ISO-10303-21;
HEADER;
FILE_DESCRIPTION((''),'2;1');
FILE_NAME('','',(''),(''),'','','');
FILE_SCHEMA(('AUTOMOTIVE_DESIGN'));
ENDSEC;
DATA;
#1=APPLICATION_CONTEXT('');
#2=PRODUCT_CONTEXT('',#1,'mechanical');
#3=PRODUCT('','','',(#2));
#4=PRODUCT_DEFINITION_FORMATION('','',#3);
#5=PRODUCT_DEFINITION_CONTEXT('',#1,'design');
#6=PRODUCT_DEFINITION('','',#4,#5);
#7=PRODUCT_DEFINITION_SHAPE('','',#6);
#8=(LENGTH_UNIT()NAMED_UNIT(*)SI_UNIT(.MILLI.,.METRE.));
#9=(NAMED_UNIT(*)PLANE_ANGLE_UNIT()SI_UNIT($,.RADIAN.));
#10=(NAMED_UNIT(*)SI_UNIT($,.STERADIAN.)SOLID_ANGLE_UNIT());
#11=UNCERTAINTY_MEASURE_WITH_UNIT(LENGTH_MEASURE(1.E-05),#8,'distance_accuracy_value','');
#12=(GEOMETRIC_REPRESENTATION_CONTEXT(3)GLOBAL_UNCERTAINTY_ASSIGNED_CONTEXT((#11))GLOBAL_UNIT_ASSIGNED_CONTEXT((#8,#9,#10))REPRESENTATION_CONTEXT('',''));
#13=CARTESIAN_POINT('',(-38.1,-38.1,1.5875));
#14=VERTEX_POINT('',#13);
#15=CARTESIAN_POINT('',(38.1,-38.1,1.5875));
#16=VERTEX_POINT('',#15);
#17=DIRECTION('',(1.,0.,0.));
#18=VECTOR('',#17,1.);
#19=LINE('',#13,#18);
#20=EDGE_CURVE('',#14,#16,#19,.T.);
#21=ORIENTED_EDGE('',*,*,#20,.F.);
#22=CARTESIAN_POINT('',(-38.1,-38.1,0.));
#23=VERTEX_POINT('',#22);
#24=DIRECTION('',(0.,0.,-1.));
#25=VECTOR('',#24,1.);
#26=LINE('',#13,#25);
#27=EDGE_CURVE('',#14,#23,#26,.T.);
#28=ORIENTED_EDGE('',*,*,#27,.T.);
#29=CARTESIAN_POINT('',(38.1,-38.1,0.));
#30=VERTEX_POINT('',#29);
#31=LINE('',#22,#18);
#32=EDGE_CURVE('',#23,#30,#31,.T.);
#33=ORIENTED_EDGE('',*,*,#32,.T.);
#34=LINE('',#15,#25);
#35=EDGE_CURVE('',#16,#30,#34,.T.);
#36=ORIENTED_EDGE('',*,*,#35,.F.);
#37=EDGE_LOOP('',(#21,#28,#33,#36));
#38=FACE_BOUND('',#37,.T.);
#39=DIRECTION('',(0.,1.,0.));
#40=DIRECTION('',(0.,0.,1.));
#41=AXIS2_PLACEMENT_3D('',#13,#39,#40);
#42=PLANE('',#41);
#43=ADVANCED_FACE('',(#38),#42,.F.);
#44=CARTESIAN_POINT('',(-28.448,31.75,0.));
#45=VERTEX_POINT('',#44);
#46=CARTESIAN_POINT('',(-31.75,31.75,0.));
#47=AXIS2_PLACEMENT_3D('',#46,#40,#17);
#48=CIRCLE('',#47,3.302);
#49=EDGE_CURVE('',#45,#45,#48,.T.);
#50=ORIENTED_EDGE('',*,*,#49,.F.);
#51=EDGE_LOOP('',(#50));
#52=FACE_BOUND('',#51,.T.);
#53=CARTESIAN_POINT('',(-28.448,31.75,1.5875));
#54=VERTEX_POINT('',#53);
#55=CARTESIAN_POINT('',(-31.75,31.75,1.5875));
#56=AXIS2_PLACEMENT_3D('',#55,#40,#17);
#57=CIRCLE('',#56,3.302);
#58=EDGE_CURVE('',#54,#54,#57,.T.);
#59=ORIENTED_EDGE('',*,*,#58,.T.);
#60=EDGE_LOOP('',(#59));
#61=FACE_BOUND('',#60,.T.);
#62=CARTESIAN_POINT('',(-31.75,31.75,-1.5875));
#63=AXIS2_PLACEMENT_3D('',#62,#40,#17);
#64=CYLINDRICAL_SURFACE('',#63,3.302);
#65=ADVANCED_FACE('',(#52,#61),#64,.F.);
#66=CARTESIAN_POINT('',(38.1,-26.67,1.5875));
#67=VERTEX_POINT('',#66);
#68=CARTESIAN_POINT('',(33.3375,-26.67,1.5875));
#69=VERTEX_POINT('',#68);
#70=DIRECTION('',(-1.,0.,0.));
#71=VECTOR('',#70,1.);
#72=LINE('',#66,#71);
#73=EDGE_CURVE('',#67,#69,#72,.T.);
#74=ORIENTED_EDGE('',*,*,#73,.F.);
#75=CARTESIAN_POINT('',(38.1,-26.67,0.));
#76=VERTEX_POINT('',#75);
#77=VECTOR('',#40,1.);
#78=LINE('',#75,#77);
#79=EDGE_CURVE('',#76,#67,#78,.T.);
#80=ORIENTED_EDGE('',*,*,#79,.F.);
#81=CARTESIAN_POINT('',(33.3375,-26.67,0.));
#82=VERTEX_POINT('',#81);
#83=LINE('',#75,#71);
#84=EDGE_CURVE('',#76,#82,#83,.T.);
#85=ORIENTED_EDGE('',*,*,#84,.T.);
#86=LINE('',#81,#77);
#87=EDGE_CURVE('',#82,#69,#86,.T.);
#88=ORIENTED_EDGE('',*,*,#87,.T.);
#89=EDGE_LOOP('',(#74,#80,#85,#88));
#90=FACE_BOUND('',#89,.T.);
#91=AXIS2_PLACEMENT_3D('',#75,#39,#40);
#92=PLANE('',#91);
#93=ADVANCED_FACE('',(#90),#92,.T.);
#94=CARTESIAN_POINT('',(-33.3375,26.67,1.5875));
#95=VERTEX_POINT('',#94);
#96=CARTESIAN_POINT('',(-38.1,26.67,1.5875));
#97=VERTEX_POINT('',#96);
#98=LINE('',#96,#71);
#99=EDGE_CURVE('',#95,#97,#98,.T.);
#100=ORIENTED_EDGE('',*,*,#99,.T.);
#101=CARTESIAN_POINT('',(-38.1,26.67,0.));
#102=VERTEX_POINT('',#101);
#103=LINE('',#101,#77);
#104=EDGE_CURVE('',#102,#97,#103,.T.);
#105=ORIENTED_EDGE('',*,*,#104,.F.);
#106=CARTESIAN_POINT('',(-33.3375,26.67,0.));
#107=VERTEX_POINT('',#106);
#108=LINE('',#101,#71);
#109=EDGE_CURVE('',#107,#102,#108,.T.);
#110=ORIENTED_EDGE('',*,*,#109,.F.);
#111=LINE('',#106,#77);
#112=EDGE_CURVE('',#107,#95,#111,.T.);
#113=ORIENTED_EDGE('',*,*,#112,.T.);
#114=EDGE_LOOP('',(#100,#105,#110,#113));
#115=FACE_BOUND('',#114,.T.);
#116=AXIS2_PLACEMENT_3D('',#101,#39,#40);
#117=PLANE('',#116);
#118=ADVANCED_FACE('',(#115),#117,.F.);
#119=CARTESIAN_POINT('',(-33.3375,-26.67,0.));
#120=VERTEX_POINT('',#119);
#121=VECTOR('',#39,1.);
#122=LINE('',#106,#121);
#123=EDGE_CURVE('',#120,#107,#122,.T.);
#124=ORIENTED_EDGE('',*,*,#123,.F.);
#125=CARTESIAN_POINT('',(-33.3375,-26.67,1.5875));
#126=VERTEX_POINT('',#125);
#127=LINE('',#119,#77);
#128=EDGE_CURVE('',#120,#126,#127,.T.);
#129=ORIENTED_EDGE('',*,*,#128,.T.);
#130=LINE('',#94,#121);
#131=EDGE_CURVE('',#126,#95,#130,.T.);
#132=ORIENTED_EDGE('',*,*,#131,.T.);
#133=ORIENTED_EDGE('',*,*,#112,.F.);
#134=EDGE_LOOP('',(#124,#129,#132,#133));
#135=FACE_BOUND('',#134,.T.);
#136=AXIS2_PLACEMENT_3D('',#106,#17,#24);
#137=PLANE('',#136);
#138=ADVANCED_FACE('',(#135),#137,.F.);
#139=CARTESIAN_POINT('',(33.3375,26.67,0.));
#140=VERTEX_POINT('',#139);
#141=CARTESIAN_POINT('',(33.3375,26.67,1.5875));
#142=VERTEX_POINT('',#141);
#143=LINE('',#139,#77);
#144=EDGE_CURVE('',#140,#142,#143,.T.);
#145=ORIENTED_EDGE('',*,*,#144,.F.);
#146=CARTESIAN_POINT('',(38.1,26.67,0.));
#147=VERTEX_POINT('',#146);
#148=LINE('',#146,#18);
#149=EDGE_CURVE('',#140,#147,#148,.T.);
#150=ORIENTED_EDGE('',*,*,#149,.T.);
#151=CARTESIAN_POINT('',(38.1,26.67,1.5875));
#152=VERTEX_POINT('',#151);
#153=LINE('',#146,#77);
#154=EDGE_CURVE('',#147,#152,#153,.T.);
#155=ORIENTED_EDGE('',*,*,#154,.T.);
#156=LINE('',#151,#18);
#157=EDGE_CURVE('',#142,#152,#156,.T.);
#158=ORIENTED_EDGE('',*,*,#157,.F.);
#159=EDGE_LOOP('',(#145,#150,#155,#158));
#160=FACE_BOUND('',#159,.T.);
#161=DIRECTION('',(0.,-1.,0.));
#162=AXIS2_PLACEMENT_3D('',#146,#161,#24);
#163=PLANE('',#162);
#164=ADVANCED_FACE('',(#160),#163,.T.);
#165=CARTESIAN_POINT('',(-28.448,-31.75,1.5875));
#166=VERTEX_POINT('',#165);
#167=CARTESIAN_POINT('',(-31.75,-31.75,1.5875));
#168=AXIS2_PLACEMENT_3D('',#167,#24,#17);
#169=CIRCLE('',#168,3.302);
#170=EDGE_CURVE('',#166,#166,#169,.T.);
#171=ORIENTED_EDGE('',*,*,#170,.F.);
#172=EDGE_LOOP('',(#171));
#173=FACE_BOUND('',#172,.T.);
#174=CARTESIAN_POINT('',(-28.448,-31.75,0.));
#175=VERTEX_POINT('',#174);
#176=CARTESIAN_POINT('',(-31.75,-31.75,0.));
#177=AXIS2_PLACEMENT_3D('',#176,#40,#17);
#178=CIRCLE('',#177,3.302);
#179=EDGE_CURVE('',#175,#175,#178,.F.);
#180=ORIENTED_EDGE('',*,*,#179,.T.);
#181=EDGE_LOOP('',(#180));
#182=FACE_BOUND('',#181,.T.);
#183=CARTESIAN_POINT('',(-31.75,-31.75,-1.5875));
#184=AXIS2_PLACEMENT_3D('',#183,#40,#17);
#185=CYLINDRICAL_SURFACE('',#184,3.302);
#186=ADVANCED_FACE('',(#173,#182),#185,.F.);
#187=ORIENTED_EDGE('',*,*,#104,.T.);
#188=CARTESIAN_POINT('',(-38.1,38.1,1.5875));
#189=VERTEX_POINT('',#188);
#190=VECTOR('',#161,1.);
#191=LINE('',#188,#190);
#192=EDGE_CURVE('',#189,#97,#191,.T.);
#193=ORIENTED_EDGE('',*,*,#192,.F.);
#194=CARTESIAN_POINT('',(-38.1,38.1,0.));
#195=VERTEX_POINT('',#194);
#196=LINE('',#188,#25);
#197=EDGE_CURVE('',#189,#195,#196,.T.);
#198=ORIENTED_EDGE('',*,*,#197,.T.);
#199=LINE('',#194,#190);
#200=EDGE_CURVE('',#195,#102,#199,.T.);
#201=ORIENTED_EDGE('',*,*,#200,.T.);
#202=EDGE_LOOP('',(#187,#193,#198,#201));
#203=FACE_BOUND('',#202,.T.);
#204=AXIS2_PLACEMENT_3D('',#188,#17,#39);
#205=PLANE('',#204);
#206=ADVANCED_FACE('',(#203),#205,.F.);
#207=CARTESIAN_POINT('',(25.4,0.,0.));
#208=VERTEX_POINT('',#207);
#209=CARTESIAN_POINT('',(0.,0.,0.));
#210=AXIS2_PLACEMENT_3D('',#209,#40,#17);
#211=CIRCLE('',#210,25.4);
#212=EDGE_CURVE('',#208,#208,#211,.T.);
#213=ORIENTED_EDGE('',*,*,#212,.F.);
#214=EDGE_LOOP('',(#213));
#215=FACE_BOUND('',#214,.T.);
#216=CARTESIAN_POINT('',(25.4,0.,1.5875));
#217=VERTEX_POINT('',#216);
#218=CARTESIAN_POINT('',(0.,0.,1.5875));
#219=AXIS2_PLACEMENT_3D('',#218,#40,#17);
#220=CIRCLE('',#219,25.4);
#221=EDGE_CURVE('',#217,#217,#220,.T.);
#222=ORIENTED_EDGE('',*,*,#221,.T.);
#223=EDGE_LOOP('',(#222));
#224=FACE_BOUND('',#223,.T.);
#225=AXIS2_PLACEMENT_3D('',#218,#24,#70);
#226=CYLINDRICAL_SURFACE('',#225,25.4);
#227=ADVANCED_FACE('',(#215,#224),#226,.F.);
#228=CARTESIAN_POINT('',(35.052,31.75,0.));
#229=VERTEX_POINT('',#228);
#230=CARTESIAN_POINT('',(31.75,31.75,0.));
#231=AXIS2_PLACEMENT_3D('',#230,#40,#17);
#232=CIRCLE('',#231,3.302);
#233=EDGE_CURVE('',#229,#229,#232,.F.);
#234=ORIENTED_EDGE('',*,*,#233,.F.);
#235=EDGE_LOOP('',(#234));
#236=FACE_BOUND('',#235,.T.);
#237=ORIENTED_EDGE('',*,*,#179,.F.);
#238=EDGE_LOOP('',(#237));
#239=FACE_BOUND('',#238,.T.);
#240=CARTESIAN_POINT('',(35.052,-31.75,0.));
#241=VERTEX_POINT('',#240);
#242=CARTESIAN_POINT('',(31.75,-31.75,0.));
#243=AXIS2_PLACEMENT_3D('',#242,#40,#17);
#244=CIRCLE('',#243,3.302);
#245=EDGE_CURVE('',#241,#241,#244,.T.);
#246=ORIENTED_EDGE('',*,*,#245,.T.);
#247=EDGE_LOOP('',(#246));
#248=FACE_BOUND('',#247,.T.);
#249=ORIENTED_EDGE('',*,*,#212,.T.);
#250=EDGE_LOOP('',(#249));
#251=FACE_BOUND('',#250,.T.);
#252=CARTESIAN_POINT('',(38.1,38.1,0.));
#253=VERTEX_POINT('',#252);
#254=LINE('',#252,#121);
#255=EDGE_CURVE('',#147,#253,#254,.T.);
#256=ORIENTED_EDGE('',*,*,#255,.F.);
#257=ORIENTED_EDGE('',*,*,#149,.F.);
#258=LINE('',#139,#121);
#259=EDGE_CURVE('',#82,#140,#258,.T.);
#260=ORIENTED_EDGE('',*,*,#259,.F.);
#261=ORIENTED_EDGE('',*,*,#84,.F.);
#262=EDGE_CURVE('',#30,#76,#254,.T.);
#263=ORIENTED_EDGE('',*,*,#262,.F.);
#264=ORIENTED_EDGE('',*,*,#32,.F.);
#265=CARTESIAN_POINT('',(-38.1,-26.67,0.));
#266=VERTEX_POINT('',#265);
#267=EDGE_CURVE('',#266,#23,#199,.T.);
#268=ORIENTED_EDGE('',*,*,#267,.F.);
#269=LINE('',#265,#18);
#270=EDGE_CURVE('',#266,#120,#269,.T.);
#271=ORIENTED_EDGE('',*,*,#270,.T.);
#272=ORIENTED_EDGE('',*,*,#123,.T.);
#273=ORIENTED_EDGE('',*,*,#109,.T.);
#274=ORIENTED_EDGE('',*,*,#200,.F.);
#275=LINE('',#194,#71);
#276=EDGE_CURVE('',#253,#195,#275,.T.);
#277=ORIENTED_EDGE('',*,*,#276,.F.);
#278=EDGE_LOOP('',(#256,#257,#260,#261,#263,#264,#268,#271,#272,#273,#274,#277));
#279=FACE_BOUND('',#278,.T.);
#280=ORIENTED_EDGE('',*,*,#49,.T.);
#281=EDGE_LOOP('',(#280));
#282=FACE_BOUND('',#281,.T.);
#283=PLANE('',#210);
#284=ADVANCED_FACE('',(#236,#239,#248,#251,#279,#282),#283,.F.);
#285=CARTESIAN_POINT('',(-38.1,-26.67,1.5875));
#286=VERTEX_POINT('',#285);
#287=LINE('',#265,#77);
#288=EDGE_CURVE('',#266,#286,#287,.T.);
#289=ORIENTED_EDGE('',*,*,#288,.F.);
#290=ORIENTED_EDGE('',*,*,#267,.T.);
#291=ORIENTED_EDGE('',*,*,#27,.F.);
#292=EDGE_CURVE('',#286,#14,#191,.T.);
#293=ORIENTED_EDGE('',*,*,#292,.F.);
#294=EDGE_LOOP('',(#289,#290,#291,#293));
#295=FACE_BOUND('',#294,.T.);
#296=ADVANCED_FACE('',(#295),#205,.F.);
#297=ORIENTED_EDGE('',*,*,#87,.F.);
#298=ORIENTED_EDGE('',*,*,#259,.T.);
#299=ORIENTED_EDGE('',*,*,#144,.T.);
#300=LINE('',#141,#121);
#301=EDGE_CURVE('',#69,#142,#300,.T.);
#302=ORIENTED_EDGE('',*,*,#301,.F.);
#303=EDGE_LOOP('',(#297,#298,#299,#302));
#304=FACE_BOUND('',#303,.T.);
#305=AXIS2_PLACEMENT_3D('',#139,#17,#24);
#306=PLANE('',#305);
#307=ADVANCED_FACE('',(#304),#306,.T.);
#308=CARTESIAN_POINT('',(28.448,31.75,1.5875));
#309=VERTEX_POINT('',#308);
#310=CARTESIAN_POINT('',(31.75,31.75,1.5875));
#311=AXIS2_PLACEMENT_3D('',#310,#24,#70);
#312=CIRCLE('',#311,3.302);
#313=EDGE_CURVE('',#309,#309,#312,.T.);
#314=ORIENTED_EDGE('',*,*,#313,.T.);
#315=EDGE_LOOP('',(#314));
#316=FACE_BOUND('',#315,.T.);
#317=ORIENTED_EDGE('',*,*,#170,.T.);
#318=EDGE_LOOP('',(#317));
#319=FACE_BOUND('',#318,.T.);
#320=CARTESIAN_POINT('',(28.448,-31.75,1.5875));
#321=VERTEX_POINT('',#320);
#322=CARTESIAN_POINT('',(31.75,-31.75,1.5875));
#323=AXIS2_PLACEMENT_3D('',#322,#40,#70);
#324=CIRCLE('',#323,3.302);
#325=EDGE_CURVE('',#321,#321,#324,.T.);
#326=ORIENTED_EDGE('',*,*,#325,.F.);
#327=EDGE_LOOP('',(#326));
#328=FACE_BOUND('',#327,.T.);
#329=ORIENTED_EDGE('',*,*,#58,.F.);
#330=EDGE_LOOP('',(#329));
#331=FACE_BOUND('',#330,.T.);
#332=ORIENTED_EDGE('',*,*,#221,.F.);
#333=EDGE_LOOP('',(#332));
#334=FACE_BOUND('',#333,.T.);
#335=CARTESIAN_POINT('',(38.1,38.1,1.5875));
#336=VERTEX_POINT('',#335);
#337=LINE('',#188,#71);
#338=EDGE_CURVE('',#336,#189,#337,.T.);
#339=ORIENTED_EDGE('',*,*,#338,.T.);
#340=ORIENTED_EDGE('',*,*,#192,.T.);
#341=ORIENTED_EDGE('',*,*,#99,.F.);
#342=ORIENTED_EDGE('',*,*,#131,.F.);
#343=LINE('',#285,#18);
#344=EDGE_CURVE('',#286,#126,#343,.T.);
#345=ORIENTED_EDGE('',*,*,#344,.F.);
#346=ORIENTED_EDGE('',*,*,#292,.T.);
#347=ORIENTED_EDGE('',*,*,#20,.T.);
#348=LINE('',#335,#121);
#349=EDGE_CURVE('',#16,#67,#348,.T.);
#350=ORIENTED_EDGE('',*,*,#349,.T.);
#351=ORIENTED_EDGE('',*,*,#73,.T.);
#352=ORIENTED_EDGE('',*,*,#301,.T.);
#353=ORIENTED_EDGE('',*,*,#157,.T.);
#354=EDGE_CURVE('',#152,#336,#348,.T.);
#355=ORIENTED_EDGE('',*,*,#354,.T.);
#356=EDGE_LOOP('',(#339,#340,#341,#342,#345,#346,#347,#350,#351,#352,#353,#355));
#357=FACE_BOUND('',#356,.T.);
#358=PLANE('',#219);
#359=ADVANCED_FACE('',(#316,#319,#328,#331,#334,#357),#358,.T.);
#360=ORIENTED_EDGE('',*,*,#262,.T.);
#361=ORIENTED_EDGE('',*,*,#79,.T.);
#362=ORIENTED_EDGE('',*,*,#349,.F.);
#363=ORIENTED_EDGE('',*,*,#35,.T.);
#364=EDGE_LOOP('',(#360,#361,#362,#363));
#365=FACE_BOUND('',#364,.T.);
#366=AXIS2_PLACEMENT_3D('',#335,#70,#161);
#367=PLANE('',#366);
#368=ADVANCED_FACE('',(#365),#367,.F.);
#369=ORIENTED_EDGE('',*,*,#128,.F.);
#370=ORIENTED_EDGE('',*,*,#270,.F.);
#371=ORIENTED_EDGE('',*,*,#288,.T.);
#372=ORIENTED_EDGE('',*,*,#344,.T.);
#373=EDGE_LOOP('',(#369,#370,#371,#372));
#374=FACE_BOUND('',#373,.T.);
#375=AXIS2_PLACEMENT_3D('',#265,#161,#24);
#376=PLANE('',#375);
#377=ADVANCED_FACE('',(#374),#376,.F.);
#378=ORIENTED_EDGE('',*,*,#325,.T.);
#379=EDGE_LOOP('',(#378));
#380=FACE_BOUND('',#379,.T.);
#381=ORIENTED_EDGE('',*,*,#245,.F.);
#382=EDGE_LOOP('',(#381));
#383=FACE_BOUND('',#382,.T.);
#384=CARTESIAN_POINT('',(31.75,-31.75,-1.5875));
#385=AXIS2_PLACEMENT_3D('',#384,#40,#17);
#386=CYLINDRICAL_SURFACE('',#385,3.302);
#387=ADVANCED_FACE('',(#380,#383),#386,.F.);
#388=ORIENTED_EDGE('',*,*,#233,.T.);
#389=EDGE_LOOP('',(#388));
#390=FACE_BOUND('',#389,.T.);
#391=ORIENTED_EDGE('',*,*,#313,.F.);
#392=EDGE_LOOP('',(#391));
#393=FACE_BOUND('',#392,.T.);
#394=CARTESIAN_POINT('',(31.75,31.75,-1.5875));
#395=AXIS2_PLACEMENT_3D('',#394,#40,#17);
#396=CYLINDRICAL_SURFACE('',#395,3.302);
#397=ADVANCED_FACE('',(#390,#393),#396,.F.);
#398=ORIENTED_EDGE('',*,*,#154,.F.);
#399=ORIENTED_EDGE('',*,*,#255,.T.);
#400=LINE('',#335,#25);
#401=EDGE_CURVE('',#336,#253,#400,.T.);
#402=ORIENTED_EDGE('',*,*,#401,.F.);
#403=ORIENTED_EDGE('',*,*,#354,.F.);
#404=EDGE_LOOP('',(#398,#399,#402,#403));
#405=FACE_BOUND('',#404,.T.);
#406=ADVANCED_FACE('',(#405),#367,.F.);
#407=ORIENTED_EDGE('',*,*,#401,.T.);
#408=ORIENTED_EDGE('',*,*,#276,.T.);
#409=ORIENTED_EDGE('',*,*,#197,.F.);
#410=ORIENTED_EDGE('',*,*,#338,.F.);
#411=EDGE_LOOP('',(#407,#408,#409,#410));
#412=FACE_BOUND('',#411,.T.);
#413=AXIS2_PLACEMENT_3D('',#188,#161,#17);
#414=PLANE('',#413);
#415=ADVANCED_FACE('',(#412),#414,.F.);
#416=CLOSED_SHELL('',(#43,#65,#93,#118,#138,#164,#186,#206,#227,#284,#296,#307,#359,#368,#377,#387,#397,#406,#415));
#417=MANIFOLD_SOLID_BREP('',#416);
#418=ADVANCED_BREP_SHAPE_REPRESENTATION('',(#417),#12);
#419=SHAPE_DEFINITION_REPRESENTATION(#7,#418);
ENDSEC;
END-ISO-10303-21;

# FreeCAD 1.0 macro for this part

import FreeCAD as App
import Part
import Sketcher
Q = App.Units.Quantity

doc = App.newDocument("Part")
params = doc.addObject("Spreadsheet::Sheet", "Params")
for row, (alias, value) in enumerate([
    ("sketch1_diameter", "2 in"),
    ("sketch1_width", "3 in"),
    ("pad1_length", "0.0625 in"),
    ("sketch2_diameter", "0.26 in"),
    ("pocket1_length", "0.125 in"),
    ("sketch3_diameter", "0.26 in"),
    ("pocket2_length", "0.125 in"),
    ("sketch4_height", "2.1 in"),
    ("sketch4_width", "0.1875 in"),
], start=1):
    params.set(f"A{row}", alias)
    params.set(f"B{row}", "=" + value)
    params.setAlias(f"B{row}", alias)

body = doc.addObject("PartDesign::Body", "Body")

sketch1 = body.newObject("Sketcher::SketchObject", "Sketch")
sketch1.AttachmentSupport = (doc.getObject("XY_Plane"), [""])
sketch1.MapMode = "FlatFace"
sketch1.addGeometry(Part.LineSegment(App.Vector(-38, 38, 0), App.Vector(-38, -38, 0)), False)
sketch1.addGeometry(Part.LineSegment(App.Vector(-38, -38, 0), App.Vector(38, -38, 0)), False)
sketch1.addGeometry(Part.LineSegment(App.Vector(38, -38, 0), App.Vector(38, 38, 0)), False)
sketch1.addGeometry(Part.LineSegment(App.Vector(38, 38, 0), App.Vector(-38, 38, 0)), False)
sketch1.addGeometry(Part.Circle(App.Vector(0, 0, 0), App.Vector(0, 0, 1), 25), False)
sketch1.addConstraint(Sketcher.Constraint("Coincident", 0, 2, 1, 1))
sketch1.addConstraint(Sketcher.Constraint("Coincident", 1, 2, 2, 1))
sketch1.addConstraint(Sketcher.Constraint("Coincident", 2, 2, 3, 1))
sketch1.addConstraint(Sketcher.Constraint("Coincident", 3, 2, 0, 1))
sketch1.addConstraint(Sketcher.Constraint("Vertical", 0))
sketch1.addConstraint(Sketcher.Constraint("Horizontal", 1))
sketch1.addConstraint(Sketcher.Constraint("Vertical", 2))
sketch1.addConstraint(Sketcher.Constraint("Horizontal", 3))
sketch1.addConstraint(Sketcher.Constraint("Coincident", 4, 3, -1, 1))
sketch1.addConstraint(Sketcher.Constraint("Symmetric", 0, 2, 2, 2, -1, 1))
sketch1.addConstraint(Sketcher.Constraint("Equal", 3, 0))
sketch1.addConstraint(Sketcher.Constraint("Diameter", 4, Q("2 in")))
sketch1.addConstraint(Sketcher.Constraint("DistanceX", 1, 1, 1, 2, Q("3 in")))
sketch1.setExpression("Constraints[11]", "Params.sketch1_diameter")
sketch1.setExpression("Constraints[12]", "Params.sketch1_width")
pad1 = body.newObject("PartDesign::Pad", "Pad")
pad1.Profile = sketch1
pad1.setExpression("Length", "Params.pad1_length")

sketch2 = body.newObject("Sketcher::SketchObject", "Sketch001")
sketch2.AttachmentSupport = (doc.getObject("XY_Plane"), [""])
sketch2.MapMode = "FlatFace"
sketch2.AttachmentOffset = App.Placement(App.Vector(0, 0, 0.0625 * 25.4), App.Rotation())
sketch2.addGeometry(Part.Circle(App.Vector(-31.8, 31.8, 0), App.Vector(0, 0, 1), 3.3), False)
sketch2.addConstraint(Sketcher.Constraint("Diameter", 0, Q("0.26 in")))
sketch2.addConstraint(Sketcher.Constraint("DistanceX", 0, 3, -1, 1, Q("1.25 in")))
sketch2.addConstraint(Sketcher.Constraint("DistanceY", -1, 1, 0, 3, Q("1.25 in")))
sketch2.setExpression("Constraints[0]", "Params.sketch2_diameter")
pocket1 = body.newObject("PartDesign::Pocket", "Pocket")
pocket1.Profile = sketch2
pocket1.setExpression("Length", "Params.pocket1_length")
doc.recompute()

mirrored = body.newObject("PartDesign::Mirrored", "Mirrored")
mirrored.Originals = [pocket1]
mirrored.MirrorPlane = (doc.getObject("YZ_Plane"), [""])
body.Tip = mirrored
doc.recompute()

mirrored2 = body.newObject("PartDesign::Mirrored", "Mirrored001")
mirrored2.Originals = [pocket1]
mirrored2.MirrorPlane = (doc.getObject("XZ_Plane"), [""])
body.Tip = mirrored2

sketch3 = body.newObject("Sketcher::SketchObject", "Sketch002")
sketch3.AttachmentSupport = (doc.getObject("XY_Plane"), [""])
sketch3.MapMode = "FlatFace"
sketch3.AttachmentOffset = App.Placement(App.Vector(0, 0, 0.0625 * 25.4), App.Rotation())
sketch3.addGeometry(Part.Circle(App.Vector(31.8, -31.8, 0), App.Vector(0, 0, 1), 3.3), False)
sketch3.addConstraint(Sketcher.Constraint("Diameter", 0, Q("0.26 in")))
sketch3.addConstraint(Sketcher.Constraint("DistanceX", -1, 1, 0, 3, Q("1.25 in")))
sketch3.addConstraint(Sketcher.Constraint("DistanceY", 0, 3, -1, 1, Q("1.25 in")))
sketch3.setExpression("Constraints[0]", "Params.sketch3_diameter")
pocket2 = body.newObject("PartDesign::Pocket", "Pocket001")
pocket2.Profile = sketch3
pocket2.setExpression("Length", "Params.pocket2_length")

sketch4 = body.newObject("Sketcher::SketchObject", "Sketch003")
sketch4.AttachmentSupport = (doc.getObject("XY_Plane"), [""])
sketch4.MapMode = "FlatFace"
sketch4.AttachmentOffset = App.Placement(App.Vector(0, 0, 0.0625 * 25.4), App.Rotation())
sketch4.addGeometry(Part.LineSegment(App.Vector(-38.1, 26.7, 0), App.Vector(-38.1, -26.7, 0)), False)
sketch4.addGeometry(Part.LineSegment(App.Vector(-38.1, -26.7, 0), App.Vector(-33.3, -26.7, 0)), False)
sketch4.addGeometry(Part.LineSegment(App.Vector(-33.3, -26.7, 0), App.Vector(-33.3, 26.7, 0)), False)
sketch4.addGeometry(Part.LineSegment(App.Vector(-33.3, 26.7, 0), App.Vector(-38.1, 26.7, 0)), False)
sketch4.addConstraint(Sketcher.Constraint("Coincident", 0, 2, 1, 1))
sketch4.addConstraint(Sketcher.Constraint("Coincident", 1, 2, 2, 1))
sketch4.addConstraint(Sketcher.Constraint("Coincident", 2, 2, 3, 1))
sketch4.addConstraint(Sketcher.Constraint("Coincident", 3, 2, 0, 1))
sketch4.addConstraint(Sketcher.Constraint("Vertical", 0))
sketch4.addConstraint(Sketcher.Constraint("Horizontal", 1))
sketch4.addConstraint(Sketcher.Constraint("Vertical", 2))
sketch4.addConstraint(Sketcher.Constraint("Horizontal", 3))
sketch4.addConstraint(Sketcher.Constraint("DistanceY", 0, 2, 0, 1, Q("2.1 in")))
sketch4.addConstraint(Sketcher.Constraint("DistanceX", 0, 2, -1, 1, Q("1.5 in")))
sketch4.addConstraint(Sketcher.Constraint("DistanceX", 1, 1, 1, 2, Q("0.1875 in")))
sketch4.addConstraint(Sketcher.Constraint("DistanceY", 0, 2, -1, 1, Q("1.05 in")))
sketch4.setExpression("Constraints[8]", "Params.sketch4_height")
sketch4.setExpression("Constraints[10]", "Params.sketch4_width")
pocket3 = body.newObject("PartDesign::Pocket", "Pocket002")
pocket3.Profile = sketch4
pocket3.Type = "ThroughAll"
doc.recompute()

mirrored3 = body.newObject("PartDesign::Mirrored", "Mirrored002")
mirrored3.Originals = [pocket3]
mirrored3.MirrorPlane = (doc.getObject("YZ_Plane"), [""])
body.Tip = mirrored3

doc.recompute()
